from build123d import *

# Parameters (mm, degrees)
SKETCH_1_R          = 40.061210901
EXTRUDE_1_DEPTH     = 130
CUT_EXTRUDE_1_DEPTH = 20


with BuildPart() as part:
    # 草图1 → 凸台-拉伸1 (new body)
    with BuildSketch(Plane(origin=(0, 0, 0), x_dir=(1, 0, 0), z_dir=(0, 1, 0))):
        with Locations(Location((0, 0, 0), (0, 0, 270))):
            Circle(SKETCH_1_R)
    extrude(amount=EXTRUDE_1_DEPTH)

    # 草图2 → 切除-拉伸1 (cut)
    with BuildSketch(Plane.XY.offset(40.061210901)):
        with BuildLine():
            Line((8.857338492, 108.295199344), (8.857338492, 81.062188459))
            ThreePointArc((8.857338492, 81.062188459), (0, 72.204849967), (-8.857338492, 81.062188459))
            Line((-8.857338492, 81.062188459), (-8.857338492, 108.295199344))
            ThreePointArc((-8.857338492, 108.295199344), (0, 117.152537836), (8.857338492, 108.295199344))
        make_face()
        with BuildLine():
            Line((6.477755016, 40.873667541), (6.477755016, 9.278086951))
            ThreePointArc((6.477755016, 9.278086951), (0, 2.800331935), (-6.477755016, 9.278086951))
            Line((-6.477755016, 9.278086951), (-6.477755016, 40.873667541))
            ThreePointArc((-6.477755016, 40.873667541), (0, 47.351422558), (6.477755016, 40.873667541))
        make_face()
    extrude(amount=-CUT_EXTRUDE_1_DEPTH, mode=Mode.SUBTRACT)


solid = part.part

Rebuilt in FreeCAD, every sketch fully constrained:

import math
import FreeCAD as App
import Part
import Sketcher

V = App.Vector

doc = App.newDocument("Part")
params = doc.addObject("Spreadsheet::Sheet", "Params")
for row, (alias, value) in enumerate([
    ("pad1_length", "130 mm"),
    ("pocket1_length", "20 mm"),
], start=1):
    params.set(f"A{row}", alias)
    params.set(f"B{row}", "=" + value)
    params.setAlias(f"B{row}", alias)

body = doc.addObject("PartDesign::Body", "Body")

# Sketch on XZ plane
sketch1 = doc.addObject("Sketcher::SketchObject", "Sketch")
body.addObject(sketch1)
sketch1.AttachmentSupport = (doc.XZ_Plane, [""])
sketch1.MapMode = "FlatFace"
sketch1.addGeometry(Part.Circle(V(0, 0, 0), V(0, 0, 1), 40.061211), False)
sketch1.addConstraint([
    Sketcher.Constraint("Coincident", 0, 3, -1, 1),
    Sketcher.Constraint("Diameter", 0, 80.122422),
])
pad1 = doc.addObject("PartDesign::Pad", "Pad")
body.addObject(pad1)
pad1.Profile = sketch1
pad1.setExpression("Length", "Params.pad1_length")
pad1.Reversed = True

# Sketch on XY plane
sketch2 = doc.addObject("Sketcher::SketchObject", "Sketch001")
body.addObject(sketch2)
sketch2.AttachmentSupport = (doc.XY_Plane, [""])
sketch2.MapMode = "FlatFace"
sketch2.AttachmentOffset = App.Placement(V(0, 0, 40.061211), App.Rotation())
sketch2.addGeometry([
    Part.LineSegment(V(8.857338, 81.062188, 0), V(8.857338, 108.295199, 0)),  # 0
    Part.ArcOfCircle(Part.Circle(V(0, 108.295199, 0), V(0, 0, 1), 8.857338), math.radians(0), math.radians(180)),  # 1
    Part.LineSegment(V(-8.857338, 108.295199, 0), V(-8.857338, 81.062188, 0)),  # 2
    Part.ArcOfCircle(Part.Circle(V(0, 81.062188, 0), V(0, 0, 1), 8.857338), math.radians(180), math.radians(360)),  # 3
    Part.LineSegment(V(6.477755, 9.278087, 0), V(6.477755, 40.873668, 0)),  # 4
    Part.ArcOfCircle(Part.Circle(V(0, 40.873668, 0), V(0, 0, 1), 6.477755), math.radians(0), math.radians(180)),  # 5
    Part.LineSegment(V(-6.477755, 40.873668, 0), V(-6.477755, 9.278087, 0)),  # 6
    Part.ArcOfCircle(Part.Circle(V(0, 9.278087, 0), V(0, 0, 1), 6.477755), math.radians(180), math.radians(360)),  # 7
], False)
sketch2.addConstraint([
    Sketcher.Constraint("Tangent", 0, 2, 1, 1),
    Sketcher.Constraint("Tangent", 1, 2, 2, 1),
    Sketcher.Constraint("Tangent", 2, 2, 3, 1),
    Sketcher.Constraint("Tangent", 3, 2, 0, 1),
    Sketcher.Constraint("Tangent", 4, 2, 5, 1),
    Sketcher.Constraint("Tangent", 5, 2, 6, 1),
    Sketcher.Constraint("Tangent", 6, 2, 7, 1),
    Sketcher.Constraint("Tangent", 7, 2, 4, 1),
    Sketcher.Constraint("Vertical", 0),
    Sketcher.Constraint("Vertical", 2),
    Sketcher.Constraint("Vertical", 4),
    Sketcher.Constraint("Vertical", 6),
    Sketcher.Constraint("PointOnObject", 1, 3, -2),
    Sketcher.Constraint("PointOnObject", 5, 3, -2),
    Sketcher.Constraint("Radius", 1, 8.857338),
    Sketcher.Constraint("Radius", 5, 6.477755),
    Sketcher.Constraint("DistanceY", 0, 1, 0, 2, 27.233011),
    Sketcher.Constraint("DistanceY", 4, 1, 4, 2, 31.595581),
    Sketcher.Constraint("DistanceY", -1, 1, 1, 3, 108.295199),
    Sketcher.Constraint("DistanceY", 7, 3, 3, 3, 71.784102),
])
pocket1 = doc.addObject("PartDesign::Pocket", "Pocket")
body.addObject(pocket1)
pocket1.Profile = sketch2
pocket1.setExpression("Length", "Params.pocket1_length")

doc.recompute()
